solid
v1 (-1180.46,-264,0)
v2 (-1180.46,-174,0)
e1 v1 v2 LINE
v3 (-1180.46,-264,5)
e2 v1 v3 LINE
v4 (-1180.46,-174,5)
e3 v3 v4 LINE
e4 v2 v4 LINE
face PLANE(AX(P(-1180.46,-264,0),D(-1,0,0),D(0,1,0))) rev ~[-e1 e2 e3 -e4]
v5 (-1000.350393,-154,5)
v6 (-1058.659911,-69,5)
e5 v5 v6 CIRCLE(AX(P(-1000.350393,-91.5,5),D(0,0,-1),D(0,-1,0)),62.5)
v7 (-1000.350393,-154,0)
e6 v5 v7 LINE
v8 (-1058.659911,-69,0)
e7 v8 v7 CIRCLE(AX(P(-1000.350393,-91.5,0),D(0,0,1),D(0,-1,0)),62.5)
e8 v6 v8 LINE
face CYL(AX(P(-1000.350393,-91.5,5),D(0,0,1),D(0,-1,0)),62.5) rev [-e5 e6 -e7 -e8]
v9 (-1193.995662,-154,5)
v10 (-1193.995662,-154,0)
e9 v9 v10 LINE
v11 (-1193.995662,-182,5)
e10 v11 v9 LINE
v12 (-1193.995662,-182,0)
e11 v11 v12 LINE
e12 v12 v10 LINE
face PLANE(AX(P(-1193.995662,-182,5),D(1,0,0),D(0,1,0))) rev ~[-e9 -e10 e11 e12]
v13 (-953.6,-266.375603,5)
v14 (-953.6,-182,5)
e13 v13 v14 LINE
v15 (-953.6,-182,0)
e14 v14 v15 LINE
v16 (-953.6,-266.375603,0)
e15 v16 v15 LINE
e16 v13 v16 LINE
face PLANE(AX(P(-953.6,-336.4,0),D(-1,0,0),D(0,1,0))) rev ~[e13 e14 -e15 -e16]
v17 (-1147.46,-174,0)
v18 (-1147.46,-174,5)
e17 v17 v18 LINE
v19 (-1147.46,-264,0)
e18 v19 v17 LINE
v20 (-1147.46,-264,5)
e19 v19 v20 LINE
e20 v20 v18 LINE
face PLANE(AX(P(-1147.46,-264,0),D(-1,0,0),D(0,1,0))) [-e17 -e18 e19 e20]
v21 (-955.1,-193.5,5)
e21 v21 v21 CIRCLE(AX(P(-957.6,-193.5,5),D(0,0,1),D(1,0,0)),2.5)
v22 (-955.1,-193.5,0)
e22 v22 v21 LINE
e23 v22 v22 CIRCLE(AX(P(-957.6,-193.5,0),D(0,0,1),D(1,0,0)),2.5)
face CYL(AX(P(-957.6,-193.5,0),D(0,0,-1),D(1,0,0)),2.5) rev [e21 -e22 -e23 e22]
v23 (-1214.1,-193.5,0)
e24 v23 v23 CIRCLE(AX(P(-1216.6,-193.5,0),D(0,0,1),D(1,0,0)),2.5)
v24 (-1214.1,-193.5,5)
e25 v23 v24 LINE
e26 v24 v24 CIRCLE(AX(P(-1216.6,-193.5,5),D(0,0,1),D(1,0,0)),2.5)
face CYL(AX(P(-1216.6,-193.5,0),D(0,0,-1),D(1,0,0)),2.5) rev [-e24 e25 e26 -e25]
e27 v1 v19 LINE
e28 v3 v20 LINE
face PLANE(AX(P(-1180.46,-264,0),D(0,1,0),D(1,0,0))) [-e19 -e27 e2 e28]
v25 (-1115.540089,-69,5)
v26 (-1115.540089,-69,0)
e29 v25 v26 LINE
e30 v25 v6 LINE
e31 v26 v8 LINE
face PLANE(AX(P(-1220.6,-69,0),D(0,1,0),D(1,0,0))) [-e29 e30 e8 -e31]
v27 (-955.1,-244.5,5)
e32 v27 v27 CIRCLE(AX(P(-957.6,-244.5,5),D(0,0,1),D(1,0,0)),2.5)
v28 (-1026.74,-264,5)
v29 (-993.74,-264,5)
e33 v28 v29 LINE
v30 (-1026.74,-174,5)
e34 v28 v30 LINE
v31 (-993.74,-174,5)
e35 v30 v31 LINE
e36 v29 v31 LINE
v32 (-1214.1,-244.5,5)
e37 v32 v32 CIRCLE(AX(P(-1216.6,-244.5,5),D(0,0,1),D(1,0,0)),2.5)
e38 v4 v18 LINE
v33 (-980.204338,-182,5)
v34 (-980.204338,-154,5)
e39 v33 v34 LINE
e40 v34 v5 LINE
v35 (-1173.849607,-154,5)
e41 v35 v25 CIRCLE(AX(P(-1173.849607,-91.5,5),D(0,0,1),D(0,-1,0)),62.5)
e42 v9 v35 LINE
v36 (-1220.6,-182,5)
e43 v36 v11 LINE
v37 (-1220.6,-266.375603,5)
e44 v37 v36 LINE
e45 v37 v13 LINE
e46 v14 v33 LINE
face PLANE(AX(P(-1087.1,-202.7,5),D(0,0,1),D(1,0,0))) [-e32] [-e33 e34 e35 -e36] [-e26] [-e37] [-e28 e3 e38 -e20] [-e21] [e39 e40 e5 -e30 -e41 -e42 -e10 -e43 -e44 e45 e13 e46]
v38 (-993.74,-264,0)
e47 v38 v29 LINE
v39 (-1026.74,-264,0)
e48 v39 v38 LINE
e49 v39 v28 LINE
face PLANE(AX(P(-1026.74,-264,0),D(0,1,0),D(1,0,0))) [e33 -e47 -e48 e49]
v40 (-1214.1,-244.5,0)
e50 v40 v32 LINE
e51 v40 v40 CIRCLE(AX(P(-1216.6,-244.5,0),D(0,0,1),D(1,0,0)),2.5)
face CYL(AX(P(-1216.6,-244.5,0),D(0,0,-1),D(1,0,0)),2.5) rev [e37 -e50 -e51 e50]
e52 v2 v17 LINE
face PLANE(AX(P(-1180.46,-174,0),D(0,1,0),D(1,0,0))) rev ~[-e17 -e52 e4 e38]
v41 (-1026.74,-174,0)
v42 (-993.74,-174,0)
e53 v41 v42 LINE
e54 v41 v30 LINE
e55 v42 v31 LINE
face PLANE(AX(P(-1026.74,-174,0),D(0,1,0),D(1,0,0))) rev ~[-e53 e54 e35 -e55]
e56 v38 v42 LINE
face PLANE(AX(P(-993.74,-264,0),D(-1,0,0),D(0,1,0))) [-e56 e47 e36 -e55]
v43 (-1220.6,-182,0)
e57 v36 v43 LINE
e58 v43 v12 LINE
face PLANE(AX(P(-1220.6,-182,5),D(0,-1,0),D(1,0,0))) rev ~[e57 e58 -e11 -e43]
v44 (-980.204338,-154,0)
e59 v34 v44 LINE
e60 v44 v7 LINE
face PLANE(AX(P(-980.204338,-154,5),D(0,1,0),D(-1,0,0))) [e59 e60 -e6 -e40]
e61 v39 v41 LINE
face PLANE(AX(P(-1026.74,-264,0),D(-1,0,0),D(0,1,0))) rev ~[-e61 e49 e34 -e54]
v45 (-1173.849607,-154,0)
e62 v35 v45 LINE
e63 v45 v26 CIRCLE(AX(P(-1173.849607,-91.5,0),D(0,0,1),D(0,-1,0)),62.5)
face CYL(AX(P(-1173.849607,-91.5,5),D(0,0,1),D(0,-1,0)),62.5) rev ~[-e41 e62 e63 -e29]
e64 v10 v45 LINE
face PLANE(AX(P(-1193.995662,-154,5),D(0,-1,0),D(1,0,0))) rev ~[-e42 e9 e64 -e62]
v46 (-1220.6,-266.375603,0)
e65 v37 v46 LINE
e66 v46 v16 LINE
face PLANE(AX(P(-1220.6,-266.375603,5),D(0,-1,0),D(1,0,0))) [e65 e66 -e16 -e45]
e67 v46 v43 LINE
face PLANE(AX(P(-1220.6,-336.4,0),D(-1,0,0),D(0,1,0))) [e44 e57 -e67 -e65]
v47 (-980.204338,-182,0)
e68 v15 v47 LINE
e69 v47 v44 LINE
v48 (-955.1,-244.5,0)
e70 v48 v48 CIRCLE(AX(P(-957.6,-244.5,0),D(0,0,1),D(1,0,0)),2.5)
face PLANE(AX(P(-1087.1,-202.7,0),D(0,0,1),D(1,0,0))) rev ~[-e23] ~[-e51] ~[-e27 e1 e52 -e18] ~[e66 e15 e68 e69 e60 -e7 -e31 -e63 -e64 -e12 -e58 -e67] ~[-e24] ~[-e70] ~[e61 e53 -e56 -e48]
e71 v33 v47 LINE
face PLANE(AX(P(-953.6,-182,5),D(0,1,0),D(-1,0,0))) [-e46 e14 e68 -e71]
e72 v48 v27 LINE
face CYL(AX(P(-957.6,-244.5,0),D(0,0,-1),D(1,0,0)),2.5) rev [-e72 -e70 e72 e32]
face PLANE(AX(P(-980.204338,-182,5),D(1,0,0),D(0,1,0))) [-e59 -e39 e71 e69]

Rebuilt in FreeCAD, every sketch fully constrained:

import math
import FreeCAD as App
import Part
import Sketcher
from FreeCAD import Vector
Q = App.Units.Quantity

doc = App.newDocument("Part")
body = doc.addObject("PartDesign::Body", "Body")

# Sketch on XY plane
sketch1 = body.newObject("Sketcher::SketchObject", "Sketch")
sketch1.AttachmentSupport = (doc.getObject("XY_Plane"), [""])
sketch1.MapMode = "FlatFace"
sketch1.addGeometry(Part.LineSegment(Vector(-1220.6, -69, 0), Vector(-1220.6, -336.4, 0)), False)
sketch1.addGeometry(Part.LineSegment(Vector(-1220.6, -336.4, 0), Vector(-953.6, -336.4, 0)), False)
sketch1.addGeometry(Part.LineSegment(Vector(-953.6, -336.4, 0), Vector(-953.6, -69, 0)), False)
sketch1.addGeometry(Part.LineSegment(Vector(-953.6, -69, 0), Vector(-1220.6, -69, 0)), False)
sketch1.addGeometry(Part.Circle(Vector(-1216.6, -244.5, 0), Vector(0, 0, 1), 2.5), False)
sketch1.addGeometry(Part.Circle(Vector(-957.6, -244.5, 0), Vector(0, 0, 1), 2.5), False)
sketch1.addGeometry(Part.LineSegment(Vector(-1147.46, -264, 0), Vector(-1180.46, -264, 0)), False)
sketch1.addGeometry(Part.LineSegment(Vector(-1180.46, -264, 0), Vector(-1180.46, -174, 0)), False)
sketch1.addGeometry(Part.LineSegment(Vector(-1180.46, -174, 0), Vector(-1147.46, -174, 0)), False)
sketch1.addGeometry(Part.LineSegment(Vector(-1147.46, -174, 0), Vector(-1147.46, -264, 0)), False)
sketch1.addGeometry(Part.Circle(Vector(-1216.6, -193.5, 0), Vector(0, 0, 1), 2.5), False)
sketch1.addGeometry(Part.LineSegment(Vector(-993.74, -264, 0), Vector(-1026.74, -264, 0)), False)
sketch1.addGeometry(Part.LineSegment(Vector(-1026.74, -264, 0), Vector(-1026.74, -174, 0)), False)
sketch1.addGeometry(Part.LineSegment(Vector(-1026.74, -174, 0), Vector(-993.74, -174, 0)), False)
sketch1.addGeometry(Part.LineSegment(Vector(-993.74, -174, 0), Vector(-993.74, -264, 0)), False)
sketch1.addGeometry(Part.Circle(Vector(-957.6, -193.5, 0), Vector(0, 0, 1), 2.5), False)
sketch1.addConstraint(Sketcher.Constraint("Coincident", 0, 2, 1, 1))
sketch1.addConstraint(Sketcher.Constraint("Coincident", 1, 2, 2, 1))
sketch1.addConstraint(Sketcher.Constraint("Coincident", 2, 2, 3, 1))
sketch1.addConstraint(Sketcher.Constraint("Coincident", 3, 2, 0, 1))
sketch1.addConstraint(Sketcher.Constraint("Coincident", 6, 2, 7, 1))
sketch1.addConstraint(Sketcher.Constraint("Coincident", 7, 2, 8, 1))
sketch1.addConstraint(Sketcher.Constraint("Coincident", 8, 2, 9, 1))
sketch1.addConstraint(Sketcher.Constraint("Coincident", 9, 2, 6, 1))
sketch1.addConstraint(Sketcher.Constraint("Coincident", 11, 2, 12, 1))
sketch1.addConstraint(Sketcher.Constraint("Coincident", 12, 2, 13, 1))
sketch1.addConstraint(Sketcher.Constraint("Coincident", 13, 2, 14, 1))
sketch1.addConstraint(Sketcher.Constraint("Coincident", 14, 2, 11, 1))
sketch1.addConstraint(Sketcher.Constraint("Vertical", 0))
sketch1.addConstraint(Sketcher.Constraint("Horizontal", 1))
sketch1.addConstraint(Sketcher.Constraint("Vertical", 2))
sketch1.addConstraint(Sketcher.Constraint("Horizontal", 3))
sketch1.addConstraint(Sketcher.Constraint("Horizontal", 6))
sketch1.addConstraint(Sketcher.Constraint("Vertical", 7))
sketch1.addConstraint(Sketcher.Constraint("Horizontal", 8))
sketch1.addConstraint(Sketcher.Constraint("Vertical", 9))
sketch1.addConstraint(Sketcher.Constraint("Horizontal", 11))
sketch1.addConstraint(Sketcher.Constraint("Vertical", 12))
sketch1.addConstraint(Sketcher.Constraint("Horizontal", 13))
sketch1.addConstraint(Sketcher.Constraint("Vertical", 14))
sketch1.addConstraint(Sketcher.Constraint("Equal", 4, 5))
sketch1.addConstraint(Sketcher.Constraint("Equal", 5, 10))
sketch1.addConstraint(Sketcher.Constraint("Equal", 10, 15))
sketch1.addConstraint(Sketcher.Constraint("Horizontal", 4, 3, 5, 3))
sketch1.addConstraint(Sketcher.Constraint("Horizontal", 10, 3, 15, 3))
sketch1.addConstraint(Sketcher.Constraint("Horizontal", 9, 2, 11, 2))
sketch1.addConstraint(Sketcher.Constraint("Horizontal", 8, 2, 12, 2))
sketch1.addConstraint(Sketcher.Constraint("Vertical", 4, 3, 10, 3))
sketch1.addConstraint(Sketcher.Constraint("Vertical", 5, 3, 15, 3))
sketch1.addConstraint(Sketcher.Constraint("Equal", 8, 11))
sketch1.addConstraint(Sketcher.Constraint("Diameter", 4, Q("5 mm")))
sketch1.addConstraint(Sketcher.Constraint("DistanceX", 1, 1, 1, 2, Q("267 mm")))
sketch1.addConstraint(Sketcher.Constraint("DistanceX", 6, 2, 6, 1, Q("33 mm")))
sketch1.addConstraint(Sketcher.Constraint("DistanceY", 7, 1, 7, 2, Q("90 mm")))
sketch1.addConstraint(Sketcher.Constraint("DistanceY", 0, 2, 0, 1, Q("267.4 mm")))
sketch1.addConstraint(Sketcher.Constraint("DistanceY", 2, 2, -1, 1, Q("69 mm")))
sketch1.addConstraint(Sketcher.Constraint("DistanceY", 6, 2, -1, 1, Q("264 mm")))
sketch1.addConstraint(Sketcher.Constraint("DistanceX", 4, 3, 5, 3, Q("259 mm")))
sketch1.addConstraint(Sketcher.Constraint("DistanceY", 4, 3, 10, 3, Q("51 mm")))
sketch1.addConstraint(Sketcher.Constraint("DistanceX", 0, 2, 4, 3, Q("4 mm")))
sketch1.addConstraint(Sketcher.Constraint("DistanceX", 4, 3, -1, 1, Q("1216.6 mm")))
sketch1.addConstraint(Sketcher.Constraint("DistanceY", 4, 3, -1, 1, Q("244.5 mm")))
sketch1.addConstraint(Sketcher.Constraint("DistanceX", 6, 2, -1, 1, Q("1180.46 mm")))
sketch1.addConstraint(Sketcher.Constraint("DistanceX", 11, 2, -1, 1, Q("1026.74 mm")))
pad1 = body.newObject("PartDesign::Pad", "Pad")
pad1.Profile = sketch1
pad1.Length = 5

# Sketch on XY plane
sketch2 = body.newObject("Sketcher::SketchObject", "Sketch001")
sketch2.AttachmentSupport = (doc.getObject("XY_Plane"), [""])
sketch2.MapMode = "FlatFace"
sketch2.AttachmentOffset = App.Placement(Vector(0, 0, 5), App.Rotation())
sketch2.addGeometry(Part.LineSegment(Vector(-953.6, -69, 0), Vector(-1058.659911, -69, 0)), False)
sketch2.addGeometry(Part.ArcOfCircle(Part.Circle(Vector(-1000.350393, -91.5, 0), Vector(0, 0, 1), 62.5), math.radians(158.899804), math.radians(270)), False)
sketch2.addGeometry(Part.LineSegment(Vector(-1000.350393, -154, 0), Vector(-980.204338, -154, 0)), False)
sketch2.addGeometry(Part.LineSegment(Vector(-980.204338, -154, 0), Vector(-980.204338, -182, 0)), False)
sketch2.addGeometry(Part.LineSegment(Vector(-980.204338, -182, 0), Vector(-953.6, -182, 0)), False)
sketch2.addGeometry(Part.LineSegment(Vector(-953.6, -182, 0), Vector(-953.6, -69, 0)), False)
sketch2.addGeometry(Part.LineSegment(Vector(-1220.6, -266.375603, 0), Vector(-1220.6, -336.4, 0)), False)
sketch2.addGeometry(Part.LineSegment(Vector(-1220.6, -336.4, 0), Vector(-953.6, -336.4, 0)), False)
sketch2.addGeometry(Part.LineSegment(Vector(-953.6, -336.4, 0), Vector(-953.6, -266.375603, 0)), False)
sketch2.addGeometry(Part.LineSegment(Vector(-953.6, -266.375603, 0), Vector(-1220.6, -266.375603, 0)), False)
sketch2.addGeometry(Part.LineSegment(Vector(-1115.540089, -69, 0), Vector(-1220.6, -69, 0)), False)
sketch2.addGeometry(Part.LineSegment(Vector(-1220.6, -69, 0), Vector(-1220.6, -182, 0)), False)
sketch2.addGeometry(Part.LineSegment(Vector(-1220.6, -182, 0), Vector(-1193.995662, -182, 0)), False)
sketch2.addGeometry(Part.LineSegment(Vector(-1193.995662, -182, 0), Vector(-1193.995662, -154, 0)), False)
sketch2.addGeometry(Part.LineSegment(Vector(-1193.995662, -154, 0), Vector(-1173.849607, -154, 0)), False)
sketch2.addGeometry(Part.ArcOfCircle(Part.Circle(Vector(-1173.849607, -91.5, 0), Vector(0, 0, 1), 62.5), math.radians(-90), math.radians(21.100196)), False)
sketch2.addConstraint(Sketcher.Constraint("Coincident", 0, 2, 1, 1))
sketch2.addConstraint(Sketcher.Constraint("Tangent", 1, 2, 2, 1))
sketch2.addConstraint(Sketcher.Constraint("Coincident", 2, 2, 3, 1))
sketch2.addConstraint(Sketcher.Constraint("Coincident", 3, 2, 4, 1))
sketch2.addConstraint(Sketcher.Constraint("Coincident", 4, 2, 5, 1))
sketch2.addConstraint(Sketcher.Constraint("Coincident", 5, 2, 0, 1))
sketch2.addConstraint(Sketcher.Constraint("Coincident", 6, 2, 7, 1))
sketch2.addConstraint(Sketcher.Constraint("Coincident", 7, 2, 8, 1))
sketch2.addConstraint(Sketcher.Constraint("Coincident", 8, 2, 9, 1))
sketch2.addConstraint(Sketcher.Constraint("Coincident", 9, 2, 6, 1))
sketch2.addConstraint(Sketcher.Constraint("Coincident", 10, 2, 11, 1))
sketch2.addConstraint(Sketcher.Constraint("Coincident", 11, 2, 12, 1))
sketch2.addConstraint(Sketcher.Constraint("Coincident", 12, 2, 13, 1))
sketch2.addConstraint(Sketcher.Constraint("Coincident", 13, 2, 14, 1))
sketch2.addConstraint(Sketcher.Constraint("Tangent", 14, 2, 15, 1))
sketch2.addConstraint(Sketcher.Constraint("Coincident", 15, 2, 10, 1))
sketch2.addConstraint(Sketcher.Constraint("Horizontal", 0))
sketch2.addConstraint(Sketcher.Constraint("Horizontal", 2))
sketch2.addConstraint(Sketcher.Constraint("Vertical", 3))
sketch2.addConstraint(Sketcher.Constraint("Horizontal", 4))
sketch2.addConstraint(Sketcher.Constraint("Vertical", 5))
sketch2.addConstraint(Sketcher.Constraint("Vertical", 6))
sketch2.addConstraint(Sketcher.Constraint("Horizontal", 7))
sketch2.addConstraint(Sketcher.Constraint("Vertical", 8))
sketch2.addConstraint(Sketcher.Constraint("Horizontal", 9))
sketch2.addConstraint(Sketcher.Constraint("Horizontal", 10))
sketch2.addConstraint(Sketcher.Constraint("Vertical", 11))
sketch2.addConstraint(Sketcher.Constraint("Horizontal", 12))
sketch2.addConstraint(Sketcher.Constraint("Vertical", 13))
sketch2.addConstraint(Sketcher.Constraint("Horizontal", 14))
sketch2.addConstraint(Sketcher.Constraint("Equal", 1, 15))
sketch2.addConstraint(Sketcher.Constraint("Horizontal", 1, 3, 15, 3))
sketch2.addConstraint(Sketcher.Constraint("Horizontal", 5, 2, 10, 2))
sketch2.addConstraint(Sketcher.Constraint("Horizontal", 4, 2, 11, 2))
sketch2.addConstraint(Sketcher.Constraint("Vertical", 5, 2, 7, 2))
sketch2.addConstraint(Sketcher.Constraint("Vertical", 9, 2, 10, 2))
sketch2.addConstraint(Sketcher.Constraint("Equal", 0, 10))
sketch2.addConstraint(Sketcher.Constraint("Equal", 4, 12))
sketch2.addConstraint(Sketcher.Constraint("Radius", 1, Q("62.5 mm")))
sketch2.addConstraint(Sketcher.Constraint("DistanceX", 7, 1, 7, 2, Q("267 mm")))
sketch2.addConstraint(Sketcher.Constraint("DistanceY", 3, 2, 3, 1, Q("28 mm")))
sketch2.addConstraint(Sketcher.Constraint("DistanceY", 5, 1, 5, 2, Q("113 mm")))
sketch2.addConstraint(Sketcher.Constraint("DistanceY", 0, 2, -1, 1, Q("69 mm")))
sketch2.addConstraint(Sketcher.Constraint("DistanceX", 4, 2, -1, 1, Q("953.6 mm")))
sketch2.addConstraint(Sketcher.Constraint("DistanceY", 6, 2, -1, 1, Q("336.4 mm")))
sketch2.addConstraint(Sketcher.Constraint("DistanceX", 0, 2, 0, 1, Q("105.059911 mm")))
sketch2.addConstraint(Sketcher.Constraint("DistanceX", 4, 1, 4, 2, Q("26.604338 mm")))
sketch2.addConstraint(Sketcher.Constraint("DistanceY", 6, 2, 6, 1, Q("70.024397 mm")))
pocket1 = body.newObject("PartDesign::Pocket", "Pocket")
pocket1.Profile = sketch2
pocket1.Type = "ThroughAll"

doc.recompute()
